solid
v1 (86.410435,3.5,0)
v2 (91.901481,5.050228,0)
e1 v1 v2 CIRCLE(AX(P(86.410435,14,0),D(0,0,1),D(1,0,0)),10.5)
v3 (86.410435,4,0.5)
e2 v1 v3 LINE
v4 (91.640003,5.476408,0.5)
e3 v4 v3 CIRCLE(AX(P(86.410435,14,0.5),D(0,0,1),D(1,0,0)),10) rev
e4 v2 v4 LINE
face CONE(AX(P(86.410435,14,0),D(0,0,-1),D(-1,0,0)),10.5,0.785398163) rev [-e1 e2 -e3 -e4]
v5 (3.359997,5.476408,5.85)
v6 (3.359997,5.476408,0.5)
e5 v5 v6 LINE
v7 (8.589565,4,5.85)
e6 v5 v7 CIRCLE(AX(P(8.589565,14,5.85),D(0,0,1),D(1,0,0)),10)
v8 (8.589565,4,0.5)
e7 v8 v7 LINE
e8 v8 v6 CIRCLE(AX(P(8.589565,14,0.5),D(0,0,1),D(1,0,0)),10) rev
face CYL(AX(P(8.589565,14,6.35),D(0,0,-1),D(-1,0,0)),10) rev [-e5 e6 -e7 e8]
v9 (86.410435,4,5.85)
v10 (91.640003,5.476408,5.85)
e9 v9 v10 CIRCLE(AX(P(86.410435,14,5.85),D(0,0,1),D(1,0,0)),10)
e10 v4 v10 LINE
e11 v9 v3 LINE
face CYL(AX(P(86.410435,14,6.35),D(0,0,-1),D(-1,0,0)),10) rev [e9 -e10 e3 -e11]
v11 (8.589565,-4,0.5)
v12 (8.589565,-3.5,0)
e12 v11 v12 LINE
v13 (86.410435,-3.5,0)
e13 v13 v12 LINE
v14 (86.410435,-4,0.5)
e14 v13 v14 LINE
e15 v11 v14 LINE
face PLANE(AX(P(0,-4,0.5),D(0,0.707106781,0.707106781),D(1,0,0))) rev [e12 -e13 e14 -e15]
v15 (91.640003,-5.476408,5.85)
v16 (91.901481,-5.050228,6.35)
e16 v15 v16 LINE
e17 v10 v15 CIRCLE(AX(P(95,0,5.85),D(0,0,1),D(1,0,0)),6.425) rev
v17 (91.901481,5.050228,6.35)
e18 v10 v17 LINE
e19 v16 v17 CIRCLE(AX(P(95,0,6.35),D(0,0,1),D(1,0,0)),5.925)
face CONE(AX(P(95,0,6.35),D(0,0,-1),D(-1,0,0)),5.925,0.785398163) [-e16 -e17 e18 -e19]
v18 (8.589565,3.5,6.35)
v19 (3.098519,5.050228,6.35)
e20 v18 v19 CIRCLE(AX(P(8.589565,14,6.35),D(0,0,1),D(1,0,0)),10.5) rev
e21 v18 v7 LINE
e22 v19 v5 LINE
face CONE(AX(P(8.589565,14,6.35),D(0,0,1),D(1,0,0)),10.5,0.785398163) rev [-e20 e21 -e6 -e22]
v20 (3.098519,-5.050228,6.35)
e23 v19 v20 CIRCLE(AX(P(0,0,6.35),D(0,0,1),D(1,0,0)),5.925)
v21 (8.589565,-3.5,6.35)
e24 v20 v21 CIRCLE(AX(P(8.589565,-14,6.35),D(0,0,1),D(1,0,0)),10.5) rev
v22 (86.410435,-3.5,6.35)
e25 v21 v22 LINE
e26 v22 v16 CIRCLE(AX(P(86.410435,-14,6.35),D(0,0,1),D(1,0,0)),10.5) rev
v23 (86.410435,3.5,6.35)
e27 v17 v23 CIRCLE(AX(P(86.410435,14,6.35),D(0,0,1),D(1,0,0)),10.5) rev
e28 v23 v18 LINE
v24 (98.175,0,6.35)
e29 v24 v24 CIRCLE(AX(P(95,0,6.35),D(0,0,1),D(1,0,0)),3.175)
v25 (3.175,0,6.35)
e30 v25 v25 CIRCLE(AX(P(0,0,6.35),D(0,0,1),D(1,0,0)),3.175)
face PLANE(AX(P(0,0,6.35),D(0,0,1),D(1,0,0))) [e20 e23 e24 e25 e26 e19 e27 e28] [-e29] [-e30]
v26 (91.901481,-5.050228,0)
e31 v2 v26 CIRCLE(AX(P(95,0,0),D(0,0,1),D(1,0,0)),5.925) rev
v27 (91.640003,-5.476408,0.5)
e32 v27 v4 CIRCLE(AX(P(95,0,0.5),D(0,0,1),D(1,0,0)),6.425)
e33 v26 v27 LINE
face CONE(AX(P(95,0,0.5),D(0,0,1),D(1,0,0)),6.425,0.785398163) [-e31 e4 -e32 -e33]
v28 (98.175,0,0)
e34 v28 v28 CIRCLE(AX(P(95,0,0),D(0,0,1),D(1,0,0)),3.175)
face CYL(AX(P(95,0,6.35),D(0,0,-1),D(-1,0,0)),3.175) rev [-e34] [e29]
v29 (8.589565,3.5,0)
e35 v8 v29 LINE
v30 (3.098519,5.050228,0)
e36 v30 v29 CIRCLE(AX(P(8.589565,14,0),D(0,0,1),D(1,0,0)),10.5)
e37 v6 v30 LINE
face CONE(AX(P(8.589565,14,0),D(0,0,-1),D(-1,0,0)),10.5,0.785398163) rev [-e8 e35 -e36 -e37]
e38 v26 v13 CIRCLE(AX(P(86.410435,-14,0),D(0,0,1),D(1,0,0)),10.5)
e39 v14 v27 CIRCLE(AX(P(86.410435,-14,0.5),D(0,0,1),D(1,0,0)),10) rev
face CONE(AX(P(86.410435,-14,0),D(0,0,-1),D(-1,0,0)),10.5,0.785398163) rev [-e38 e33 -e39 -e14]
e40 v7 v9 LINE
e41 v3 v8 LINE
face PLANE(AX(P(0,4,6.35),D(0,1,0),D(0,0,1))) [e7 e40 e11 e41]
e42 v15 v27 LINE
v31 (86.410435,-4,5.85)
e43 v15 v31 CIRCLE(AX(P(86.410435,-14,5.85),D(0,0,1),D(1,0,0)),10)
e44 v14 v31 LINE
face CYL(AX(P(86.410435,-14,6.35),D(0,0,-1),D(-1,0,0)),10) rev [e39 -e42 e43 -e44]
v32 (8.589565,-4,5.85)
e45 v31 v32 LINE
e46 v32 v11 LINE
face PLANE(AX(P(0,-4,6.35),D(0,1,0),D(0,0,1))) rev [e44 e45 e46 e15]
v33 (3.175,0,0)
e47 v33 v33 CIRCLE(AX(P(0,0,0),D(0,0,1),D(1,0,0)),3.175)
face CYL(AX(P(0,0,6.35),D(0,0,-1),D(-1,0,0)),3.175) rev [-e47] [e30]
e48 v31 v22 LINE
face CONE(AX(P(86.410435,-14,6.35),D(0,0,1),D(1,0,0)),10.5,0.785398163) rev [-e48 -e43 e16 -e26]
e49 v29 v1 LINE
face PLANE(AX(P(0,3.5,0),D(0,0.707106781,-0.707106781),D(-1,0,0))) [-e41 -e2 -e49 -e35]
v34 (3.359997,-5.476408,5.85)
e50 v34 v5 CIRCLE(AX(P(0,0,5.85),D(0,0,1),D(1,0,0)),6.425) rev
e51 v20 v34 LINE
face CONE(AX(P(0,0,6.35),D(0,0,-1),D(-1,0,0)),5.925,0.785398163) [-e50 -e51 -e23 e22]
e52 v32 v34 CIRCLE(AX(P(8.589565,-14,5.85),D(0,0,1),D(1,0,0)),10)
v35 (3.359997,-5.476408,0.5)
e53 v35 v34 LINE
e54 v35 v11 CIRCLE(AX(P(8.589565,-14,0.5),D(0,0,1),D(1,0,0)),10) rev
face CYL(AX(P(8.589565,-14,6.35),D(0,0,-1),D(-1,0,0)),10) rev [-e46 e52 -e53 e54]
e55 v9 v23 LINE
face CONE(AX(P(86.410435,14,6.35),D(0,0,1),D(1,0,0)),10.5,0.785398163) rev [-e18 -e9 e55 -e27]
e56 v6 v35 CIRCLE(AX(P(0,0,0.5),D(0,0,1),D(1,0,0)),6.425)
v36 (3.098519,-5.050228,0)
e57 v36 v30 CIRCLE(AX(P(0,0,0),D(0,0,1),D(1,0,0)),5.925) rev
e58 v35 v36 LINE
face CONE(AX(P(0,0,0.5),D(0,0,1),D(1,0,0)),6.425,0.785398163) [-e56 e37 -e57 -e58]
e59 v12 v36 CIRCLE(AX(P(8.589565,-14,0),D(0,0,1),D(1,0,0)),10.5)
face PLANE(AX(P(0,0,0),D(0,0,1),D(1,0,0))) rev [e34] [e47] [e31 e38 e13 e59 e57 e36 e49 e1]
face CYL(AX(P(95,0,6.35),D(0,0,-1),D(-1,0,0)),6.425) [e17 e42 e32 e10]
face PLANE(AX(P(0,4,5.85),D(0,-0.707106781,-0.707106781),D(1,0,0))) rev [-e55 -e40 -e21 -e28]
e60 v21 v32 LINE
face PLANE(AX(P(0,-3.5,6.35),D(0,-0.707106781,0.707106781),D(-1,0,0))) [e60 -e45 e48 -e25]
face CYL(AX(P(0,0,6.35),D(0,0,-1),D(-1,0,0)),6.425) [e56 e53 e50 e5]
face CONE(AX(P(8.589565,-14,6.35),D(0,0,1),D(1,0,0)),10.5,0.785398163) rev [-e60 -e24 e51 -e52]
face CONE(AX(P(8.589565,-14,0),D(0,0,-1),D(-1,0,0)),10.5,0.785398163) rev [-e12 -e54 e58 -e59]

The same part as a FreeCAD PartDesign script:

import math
import FreeCAD as App
import Part
import Sketcher

V = App.Vector


def edges_at(feature, points):
    """Names of the edges that pass closest to the given points."""
    edges = feature.Shape.Edges
    near = lambda p: min(range(len(edges)), key=lambda i: edges[i].distToShape(Part.Vertex(*p))[0])
    return sorted({f"Edge{near(p) + 1}" for p in points})

doc = App.newDocument("Part")
params = doc.addObject("Spreadsheet::Sheet", "Params")
for row, (alias, value) in enumerate([
    ("sketch1_diameter", "6.35 mm"),
    ("pad1_length", "6.35 mm"),
    ("fillet_radius", "10 mm"),
    ("chamfer_size", "0.5 mm"),
], start=1):
    params.set(f"A{row}", alias)
    params.set(f"B{row}", "=" + value)
    params.setAlias(f"B{row}", alias)

body = doc.addObject("PartDesign::Body", "Body")

# Sketch on XY plane
sketch1 = body.newObject("Sketcher::SketchObject", "Sketch")
sketch1.AttachmentSupport = (doc.getObject("XY_Plane"), [""])
sketch1.MapMode = "FlatFace"
sketch1.addGeometry(Part.LineSegment(V(89.972016, 4, 0), V(5.027984, 4, 0)), False)
sketch1.addGeometry(Part.ArcOfCircle(Part.Circle(V(0, 0, 0), V(0, 0, 1), 6.425), math.radians(38.503914), math.radians(321.496086)), False)
sketch1.addGeometry(Part.LineSegment(V(5.027984, -4, 0), V(89.972016, -4, 0)), False)
sketch1.addGeometry(Part.ArcOfCircle(Part.Circle(V(95, 0, 0), V(0, 0, 1), 6.425), math.radians(-141.496086), math.radians(0)), False)
sketch1.addGeometry(Part.ArcOfCircle(Part.Circle(V(95, 0, 0), V(0, 0, 1), 6.425), math.radians(0), math.radians(141.496086)), False)
sketch1.addGeometry(Part.Circle(V(0, 0, 0), V(0, 0, 1), 3.175), False)
sketch1.addGeometry(Part.Circle(V(95, 0, 0), V(0, 0, 1), 3.175), False)
sketch1.addConstraint(Sketcher.Constraint("Coincident", 0, 2, 1, 1))
sketch1.addConstraint(Sketcher.Constraint("Coincident", 1, 2, 2, 1))
sketch1.addConstraint(Sketcher.Constraint("Coincident", 2, 2, 3, 1))
sketch1.addConstraint(Sketcher.Constraint("Tangent", 3, 2, 4, 1))
sketch1.addConstraint(Sketcher.Constraint("Coincident", 4, 2, 0, 1))
sketch1.addConstraint(Sketcher.Constraint("Horizontal", 0))
sketch1.addConstraint(Sketcher.Constraint("Horizontal", 2))
sketch1.addConstraint(Sketcher.Constraint("Coincident", 1, 3, -1, 1))
sketch1.addConstraint(Sketcher.Constraint("Coincident", 5, 3, -1, 1))
sketch1.addConstraint(Sketcher.Constraint("Coincident", 6, 3, 3, 3))
sketch1.addConstraint(Sketcher.Constraint("Equal", 1, 3))
sketch1.addConstraint(Sketcher.Constraint("Equal", 3, 4))
sketch1.addConstraint(Sketcher.Constraint("Equal", 5, 6))
sketch1.addConstraint(Sketcher.Constraint("Symmetric", 2, 2, 4, 2, -1))
sketch1.addConstraint(Sketcher.Constraint("PointOnObject", 3, 2, -1))
sketch1.addConstraint(Sketcher.Constraint("Diameter", 5, 6.35))
sketch1.addConstraint(Sketcher.Constraint("DistanceX", -1, 1, 3, 3, 95.0))
sketch1.addConstraint(Sketcher.Constraint("DistanceY", -1, 1, 0, 2, 4.0))
sketch1.addConstraint(Sketcher.Constraint("Radius", 1, 6.425))
sketch1.setExpression("Constraints[15]", "Params.sketch1_diameter")
pad1 = body.newObject("PartDesign::Pad", "Pad")
pad1.Profile = sketch1
pad1.setExpression("Length", "Params.pad1_length")
doc.recompute()

fillet = body.newObject("PartDesign::Fillet", "Fillet")
fillet.Base = (pad1, edges_at(pad1, [
    (89.972, 4, 3.175),
    (89.972, -4, 3.175),
    (5.028, -4, 3.175),
    (5.028, 4, 3.175),
]))
fillet.setExpression("Radius", "Params.fillet_radius")
doc.recompute()

chamfer = body.newObject("PartDesign::Chamfer", "Chamfer")
chamfer.Base = (fillet, edges_at(fillet, [
    (47.5, 4, 0),
    (47.5, 4, 6.35),
    (98.138, 5.607, 0),
    (98.138, 5.607, 6.35),
    (47.5, -4, 0),
    (47.5, -4, 6.35),
    (-6.425, 0, 0),
    (-6.425, 0, 6.35),
    (89.127, 4.376, 0),
    (89.127, 4.376, 6.35),
    (89.127, -4.376, 0),
    (89.127, -4.376, 6.35),
    (5.873, -4.376, 0),
    (5.873, -4.376, 6.35),
    (5.873, 4.376, 0),
    (5.873, 4.376, 6.35),
]))
chamfer.setExpression("Size", "Params.chamfer_size")

doc.recompute()
